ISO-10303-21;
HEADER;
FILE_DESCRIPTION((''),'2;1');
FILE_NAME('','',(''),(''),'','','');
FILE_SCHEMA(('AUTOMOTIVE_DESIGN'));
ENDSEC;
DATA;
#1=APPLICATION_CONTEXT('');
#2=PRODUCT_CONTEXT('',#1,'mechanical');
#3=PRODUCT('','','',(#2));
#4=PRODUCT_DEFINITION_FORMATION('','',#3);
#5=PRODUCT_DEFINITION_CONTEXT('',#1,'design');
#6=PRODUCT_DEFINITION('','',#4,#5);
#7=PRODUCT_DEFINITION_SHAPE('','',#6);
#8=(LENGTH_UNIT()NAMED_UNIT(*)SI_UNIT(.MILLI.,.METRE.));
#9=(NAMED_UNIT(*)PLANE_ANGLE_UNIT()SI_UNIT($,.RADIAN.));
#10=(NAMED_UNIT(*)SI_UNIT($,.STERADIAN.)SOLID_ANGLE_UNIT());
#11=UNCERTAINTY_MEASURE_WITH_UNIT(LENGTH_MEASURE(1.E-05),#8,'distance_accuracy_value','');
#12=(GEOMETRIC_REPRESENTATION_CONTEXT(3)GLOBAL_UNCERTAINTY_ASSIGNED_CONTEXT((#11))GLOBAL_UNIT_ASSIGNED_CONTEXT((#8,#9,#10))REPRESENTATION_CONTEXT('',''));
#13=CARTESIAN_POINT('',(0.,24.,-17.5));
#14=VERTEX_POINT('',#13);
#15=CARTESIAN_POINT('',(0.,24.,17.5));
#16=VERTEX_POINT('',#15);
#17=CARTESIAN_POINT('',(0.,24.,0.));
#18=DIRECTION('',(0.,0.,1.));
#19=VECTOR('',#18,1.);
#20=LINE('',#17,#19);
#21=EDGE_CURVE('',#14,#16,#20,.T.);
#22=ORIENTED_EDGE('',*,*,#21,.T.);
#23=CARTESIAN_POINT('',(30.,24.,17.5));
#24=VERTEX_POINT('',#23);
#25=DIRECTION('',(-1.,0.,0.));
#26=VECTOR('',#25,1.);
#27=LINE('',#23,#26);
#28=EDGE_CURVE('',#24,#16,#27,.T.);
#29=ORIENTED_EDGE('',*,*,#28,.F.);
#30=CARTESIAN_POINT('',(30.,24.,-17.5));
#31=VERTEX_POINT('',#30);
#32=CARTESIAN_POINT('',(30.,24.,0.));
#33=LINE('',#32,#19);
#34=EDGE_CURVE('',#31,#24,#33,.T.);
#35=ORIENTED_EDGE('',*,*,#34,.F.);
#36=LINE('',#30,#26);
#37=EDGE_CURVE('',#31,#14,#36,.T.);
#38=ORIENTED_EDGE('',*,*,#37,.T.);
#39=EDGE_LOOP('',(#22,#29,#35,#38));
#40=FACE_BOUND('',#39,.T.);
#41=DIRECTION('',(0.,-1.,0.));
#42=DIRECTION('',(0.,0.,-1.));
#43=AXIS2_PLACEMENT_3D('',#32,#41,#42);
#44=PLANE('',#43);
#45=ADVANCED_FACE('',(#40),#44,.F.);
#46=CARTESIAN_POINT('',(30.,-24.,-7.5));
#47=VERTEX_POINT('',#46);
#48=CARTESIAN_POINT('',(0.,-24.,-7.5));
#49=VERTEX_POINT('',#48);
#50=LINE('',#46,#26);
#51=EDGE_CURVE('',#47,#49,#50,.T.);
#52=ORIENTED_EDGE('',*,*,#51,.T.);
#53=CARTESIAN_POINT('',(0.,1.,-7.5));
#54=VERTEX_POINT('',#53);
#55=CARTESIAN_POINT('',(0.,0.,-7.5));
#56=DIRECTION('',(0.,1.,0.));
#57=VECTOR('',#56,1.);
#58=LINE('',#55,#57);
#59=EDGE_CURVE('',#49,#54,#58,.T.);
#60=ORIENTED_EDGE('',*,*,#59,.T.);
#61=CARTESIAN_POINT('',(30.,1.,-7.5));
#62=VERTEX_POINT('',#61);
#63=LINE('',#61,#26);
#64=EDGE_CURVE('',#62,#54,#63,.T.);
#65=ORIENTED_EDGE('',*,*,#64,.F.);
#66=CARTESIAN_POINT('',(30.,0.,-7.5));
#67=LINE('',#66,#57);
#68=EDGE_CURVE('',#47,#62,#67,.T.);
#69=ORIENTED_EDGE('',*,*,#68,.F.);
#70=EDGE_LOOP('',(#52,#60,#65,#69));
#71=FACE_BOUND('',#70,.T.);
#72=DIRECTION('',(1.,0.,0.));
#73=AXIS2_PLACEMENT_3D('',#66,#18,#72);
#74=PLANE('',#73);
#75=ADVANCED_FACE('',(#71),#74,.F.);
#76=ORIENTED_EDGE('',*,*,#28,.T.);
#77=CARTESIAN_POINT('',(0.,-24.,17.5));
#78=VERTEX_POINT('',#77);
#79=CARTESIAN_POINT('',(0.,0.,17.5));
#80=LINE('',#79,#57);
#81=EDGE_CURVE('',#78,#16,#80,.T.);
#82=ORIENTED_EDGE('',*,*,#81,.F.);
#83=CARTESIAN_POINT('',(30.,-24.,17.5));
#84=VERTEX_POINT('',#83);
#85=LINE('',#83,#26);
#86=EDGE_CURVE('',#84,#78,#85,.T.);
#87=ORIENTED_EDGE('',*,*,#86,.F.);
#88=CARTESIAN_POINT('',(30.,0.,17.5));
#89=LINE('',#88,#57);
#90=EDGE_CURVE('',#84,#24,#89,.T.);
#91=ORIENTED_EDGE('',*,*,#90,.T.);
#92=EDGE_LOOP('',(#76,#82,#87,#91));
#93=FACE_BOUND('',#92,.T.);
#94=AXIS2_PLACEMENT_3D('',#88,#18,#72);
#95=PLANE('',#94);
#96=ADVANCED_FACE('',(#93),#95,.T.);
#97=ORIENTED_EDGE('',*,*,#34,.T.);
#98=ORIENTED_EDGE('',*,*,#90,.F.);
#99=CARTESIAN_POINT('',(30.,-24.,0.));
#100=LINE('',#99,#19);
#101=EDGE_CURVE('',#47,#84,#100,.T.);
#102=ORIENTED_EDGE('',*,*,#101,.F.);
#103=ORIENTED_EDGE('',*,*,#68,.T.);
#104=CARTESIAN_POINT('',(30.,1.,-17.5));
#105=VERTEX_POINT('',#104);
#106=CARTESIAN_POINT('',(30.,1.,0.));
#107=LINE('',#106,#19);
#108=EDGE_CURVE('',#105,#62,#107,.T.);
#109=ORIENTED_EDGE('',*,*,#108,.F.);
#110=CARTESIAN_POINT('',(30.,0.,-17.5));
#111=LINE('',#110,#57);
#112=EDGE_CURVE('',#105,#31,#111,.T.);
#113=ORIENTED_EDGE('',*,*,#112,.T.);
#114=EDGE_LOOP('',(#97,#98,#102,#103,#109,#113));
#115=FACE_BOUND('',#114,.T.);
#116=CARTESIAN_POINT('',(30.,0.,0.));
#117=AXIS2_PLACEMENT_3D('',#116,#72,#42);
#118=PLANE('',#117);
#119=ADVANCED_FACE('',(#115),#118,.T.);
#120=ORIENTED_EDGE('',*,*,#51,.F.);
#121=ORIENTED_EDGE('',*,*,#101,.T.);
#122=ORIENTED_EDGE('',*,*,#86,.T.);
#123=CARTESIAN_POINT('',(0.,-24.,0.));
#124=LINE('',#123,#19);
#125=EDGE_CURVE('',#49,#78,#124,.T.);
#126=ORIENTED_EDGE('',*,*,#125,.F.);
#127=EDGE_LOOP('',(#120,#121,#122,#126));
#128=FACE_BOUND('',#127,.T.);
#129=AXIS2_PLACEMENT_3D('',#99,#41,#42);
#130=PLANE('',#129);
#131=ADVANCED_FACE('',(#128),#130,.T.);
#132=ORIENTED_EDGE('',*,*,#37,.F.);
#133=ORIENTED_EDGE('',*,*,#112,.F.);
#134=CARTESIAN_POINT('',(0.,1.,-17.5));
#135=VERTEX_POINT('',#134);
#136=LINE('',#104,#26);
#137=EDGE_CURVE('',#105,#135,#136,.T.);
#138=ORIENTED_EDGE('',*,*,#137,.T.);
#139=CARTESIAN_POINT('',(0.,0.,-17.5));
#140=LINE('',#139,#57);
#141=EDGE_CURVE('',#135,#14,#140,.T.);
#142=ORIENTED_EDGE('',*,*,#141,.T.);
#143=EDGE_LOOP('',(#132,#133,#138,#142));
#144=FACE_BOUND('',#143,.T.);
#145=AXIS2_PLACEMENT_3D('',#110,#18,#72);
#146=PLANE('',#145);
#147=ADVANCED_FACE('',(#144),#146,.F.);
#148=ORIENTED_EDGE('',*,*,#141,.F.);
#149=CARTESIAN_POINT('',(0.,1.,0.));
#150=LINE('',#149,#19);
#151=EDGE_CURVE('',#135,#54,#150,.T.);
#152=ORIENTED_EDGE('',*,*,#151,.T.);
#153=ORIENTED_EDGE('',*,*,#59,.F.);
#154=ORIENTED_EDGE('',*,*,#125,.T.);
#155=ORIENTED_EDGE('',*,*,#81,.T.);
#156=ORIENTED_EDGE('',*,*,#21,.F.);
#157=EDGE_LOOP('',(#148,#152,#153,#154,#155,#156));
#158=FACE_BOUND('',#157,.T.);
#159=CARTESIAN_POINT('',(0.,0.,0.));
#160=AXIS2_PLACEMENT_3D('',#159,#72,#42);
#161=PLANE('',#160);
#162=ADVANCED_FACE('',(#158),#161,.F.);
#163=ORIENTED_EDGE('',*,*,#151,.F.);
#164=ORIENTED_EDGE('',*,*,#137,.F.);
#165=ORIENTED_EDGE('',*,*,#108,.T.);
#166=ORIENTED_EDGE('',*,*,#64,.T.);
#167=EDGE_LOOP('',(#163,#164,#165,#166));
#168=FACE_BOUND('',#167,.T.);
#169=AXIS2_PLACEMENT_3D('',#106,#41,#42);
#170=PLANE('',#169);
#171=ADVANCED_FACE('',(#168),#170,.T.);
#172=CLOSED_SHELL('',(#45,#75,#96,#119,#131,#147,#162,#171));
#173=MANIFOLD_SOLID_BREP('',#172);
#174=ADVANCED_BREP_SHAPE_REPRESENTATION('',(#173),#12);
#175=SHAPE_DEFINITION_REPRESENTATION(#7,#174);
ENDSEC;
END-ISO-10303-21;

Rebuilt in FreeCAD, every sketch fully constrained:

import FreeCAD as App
import Part
import Sketcher
from FreeCAD import Vector
Q = App.Units.Quantity


def add_polygon(sketch, points):
    """Adds a closed chain of lines whose ends are joined by coincident constraints."""
    first, n = sketch.GeometryCount, len(points)
    for a, b in zip(points, points[1:] + points[:1]):
        sketch.addGeometry(Part.LineSegment(App.Vector(*a, 0), App.Vector(*b, 0)), False)
    for i in range(n):
        sketch.addConstraint(Sketcher.Constraint("Coincident", first + i, 2, first + (i + 1) % n, 1))

doc = App.newDocument("Part")
body = doc.addObject("PartDesign::Body", "Body")

sketch1 = doc.addObject("Sketcher::SketchObject", "Sketch")
body.addObject(sketch1)
sketch1.AttachmentSupport = (doc.YZ_Plane, [""])
sketch1.MapMode = "FlatFace"
add_polygon(sketch1, [(1, -8), (1, -18), (24, -18), (24, 18), (-24, 18), (-24, -8)])
sketch1.addConstraint([
    Sketcher.Constraint("Vertical", 0),
    Sketcher.Constraint("Horizontal", 1),
    Sketcher.Constraint("Vertical", 2),
    Sketcher.Constraint("Horizontal", 3),
    Sketcher.Constraint("Vertical", 4),
    Sketcher.Constraint("Horizontal", 5),
    Sketcher.Constraint("Symmetric", 1, 2, 3, 2, -1, 1),
    Sketcher.Constraint("Equal", 5, 4),
    Sketcher.Constraint("DistanceX", 1, 1, 1, 2, Q("23 mm")),
    Sketcher.Constraint("DistanceX", 3, 2, 3, 1, Q("48 mm")),
    Sketcher.Constraint("DistanceY", 0, 2, 0, 1, Q("10 mm")),
])
pad1 = doc.addObject("PartDesign::Pad", "Pad")
body.addObject(pad1)
pad1.Profile = sketch1
pad1.Length = 30

doc.recompute()
